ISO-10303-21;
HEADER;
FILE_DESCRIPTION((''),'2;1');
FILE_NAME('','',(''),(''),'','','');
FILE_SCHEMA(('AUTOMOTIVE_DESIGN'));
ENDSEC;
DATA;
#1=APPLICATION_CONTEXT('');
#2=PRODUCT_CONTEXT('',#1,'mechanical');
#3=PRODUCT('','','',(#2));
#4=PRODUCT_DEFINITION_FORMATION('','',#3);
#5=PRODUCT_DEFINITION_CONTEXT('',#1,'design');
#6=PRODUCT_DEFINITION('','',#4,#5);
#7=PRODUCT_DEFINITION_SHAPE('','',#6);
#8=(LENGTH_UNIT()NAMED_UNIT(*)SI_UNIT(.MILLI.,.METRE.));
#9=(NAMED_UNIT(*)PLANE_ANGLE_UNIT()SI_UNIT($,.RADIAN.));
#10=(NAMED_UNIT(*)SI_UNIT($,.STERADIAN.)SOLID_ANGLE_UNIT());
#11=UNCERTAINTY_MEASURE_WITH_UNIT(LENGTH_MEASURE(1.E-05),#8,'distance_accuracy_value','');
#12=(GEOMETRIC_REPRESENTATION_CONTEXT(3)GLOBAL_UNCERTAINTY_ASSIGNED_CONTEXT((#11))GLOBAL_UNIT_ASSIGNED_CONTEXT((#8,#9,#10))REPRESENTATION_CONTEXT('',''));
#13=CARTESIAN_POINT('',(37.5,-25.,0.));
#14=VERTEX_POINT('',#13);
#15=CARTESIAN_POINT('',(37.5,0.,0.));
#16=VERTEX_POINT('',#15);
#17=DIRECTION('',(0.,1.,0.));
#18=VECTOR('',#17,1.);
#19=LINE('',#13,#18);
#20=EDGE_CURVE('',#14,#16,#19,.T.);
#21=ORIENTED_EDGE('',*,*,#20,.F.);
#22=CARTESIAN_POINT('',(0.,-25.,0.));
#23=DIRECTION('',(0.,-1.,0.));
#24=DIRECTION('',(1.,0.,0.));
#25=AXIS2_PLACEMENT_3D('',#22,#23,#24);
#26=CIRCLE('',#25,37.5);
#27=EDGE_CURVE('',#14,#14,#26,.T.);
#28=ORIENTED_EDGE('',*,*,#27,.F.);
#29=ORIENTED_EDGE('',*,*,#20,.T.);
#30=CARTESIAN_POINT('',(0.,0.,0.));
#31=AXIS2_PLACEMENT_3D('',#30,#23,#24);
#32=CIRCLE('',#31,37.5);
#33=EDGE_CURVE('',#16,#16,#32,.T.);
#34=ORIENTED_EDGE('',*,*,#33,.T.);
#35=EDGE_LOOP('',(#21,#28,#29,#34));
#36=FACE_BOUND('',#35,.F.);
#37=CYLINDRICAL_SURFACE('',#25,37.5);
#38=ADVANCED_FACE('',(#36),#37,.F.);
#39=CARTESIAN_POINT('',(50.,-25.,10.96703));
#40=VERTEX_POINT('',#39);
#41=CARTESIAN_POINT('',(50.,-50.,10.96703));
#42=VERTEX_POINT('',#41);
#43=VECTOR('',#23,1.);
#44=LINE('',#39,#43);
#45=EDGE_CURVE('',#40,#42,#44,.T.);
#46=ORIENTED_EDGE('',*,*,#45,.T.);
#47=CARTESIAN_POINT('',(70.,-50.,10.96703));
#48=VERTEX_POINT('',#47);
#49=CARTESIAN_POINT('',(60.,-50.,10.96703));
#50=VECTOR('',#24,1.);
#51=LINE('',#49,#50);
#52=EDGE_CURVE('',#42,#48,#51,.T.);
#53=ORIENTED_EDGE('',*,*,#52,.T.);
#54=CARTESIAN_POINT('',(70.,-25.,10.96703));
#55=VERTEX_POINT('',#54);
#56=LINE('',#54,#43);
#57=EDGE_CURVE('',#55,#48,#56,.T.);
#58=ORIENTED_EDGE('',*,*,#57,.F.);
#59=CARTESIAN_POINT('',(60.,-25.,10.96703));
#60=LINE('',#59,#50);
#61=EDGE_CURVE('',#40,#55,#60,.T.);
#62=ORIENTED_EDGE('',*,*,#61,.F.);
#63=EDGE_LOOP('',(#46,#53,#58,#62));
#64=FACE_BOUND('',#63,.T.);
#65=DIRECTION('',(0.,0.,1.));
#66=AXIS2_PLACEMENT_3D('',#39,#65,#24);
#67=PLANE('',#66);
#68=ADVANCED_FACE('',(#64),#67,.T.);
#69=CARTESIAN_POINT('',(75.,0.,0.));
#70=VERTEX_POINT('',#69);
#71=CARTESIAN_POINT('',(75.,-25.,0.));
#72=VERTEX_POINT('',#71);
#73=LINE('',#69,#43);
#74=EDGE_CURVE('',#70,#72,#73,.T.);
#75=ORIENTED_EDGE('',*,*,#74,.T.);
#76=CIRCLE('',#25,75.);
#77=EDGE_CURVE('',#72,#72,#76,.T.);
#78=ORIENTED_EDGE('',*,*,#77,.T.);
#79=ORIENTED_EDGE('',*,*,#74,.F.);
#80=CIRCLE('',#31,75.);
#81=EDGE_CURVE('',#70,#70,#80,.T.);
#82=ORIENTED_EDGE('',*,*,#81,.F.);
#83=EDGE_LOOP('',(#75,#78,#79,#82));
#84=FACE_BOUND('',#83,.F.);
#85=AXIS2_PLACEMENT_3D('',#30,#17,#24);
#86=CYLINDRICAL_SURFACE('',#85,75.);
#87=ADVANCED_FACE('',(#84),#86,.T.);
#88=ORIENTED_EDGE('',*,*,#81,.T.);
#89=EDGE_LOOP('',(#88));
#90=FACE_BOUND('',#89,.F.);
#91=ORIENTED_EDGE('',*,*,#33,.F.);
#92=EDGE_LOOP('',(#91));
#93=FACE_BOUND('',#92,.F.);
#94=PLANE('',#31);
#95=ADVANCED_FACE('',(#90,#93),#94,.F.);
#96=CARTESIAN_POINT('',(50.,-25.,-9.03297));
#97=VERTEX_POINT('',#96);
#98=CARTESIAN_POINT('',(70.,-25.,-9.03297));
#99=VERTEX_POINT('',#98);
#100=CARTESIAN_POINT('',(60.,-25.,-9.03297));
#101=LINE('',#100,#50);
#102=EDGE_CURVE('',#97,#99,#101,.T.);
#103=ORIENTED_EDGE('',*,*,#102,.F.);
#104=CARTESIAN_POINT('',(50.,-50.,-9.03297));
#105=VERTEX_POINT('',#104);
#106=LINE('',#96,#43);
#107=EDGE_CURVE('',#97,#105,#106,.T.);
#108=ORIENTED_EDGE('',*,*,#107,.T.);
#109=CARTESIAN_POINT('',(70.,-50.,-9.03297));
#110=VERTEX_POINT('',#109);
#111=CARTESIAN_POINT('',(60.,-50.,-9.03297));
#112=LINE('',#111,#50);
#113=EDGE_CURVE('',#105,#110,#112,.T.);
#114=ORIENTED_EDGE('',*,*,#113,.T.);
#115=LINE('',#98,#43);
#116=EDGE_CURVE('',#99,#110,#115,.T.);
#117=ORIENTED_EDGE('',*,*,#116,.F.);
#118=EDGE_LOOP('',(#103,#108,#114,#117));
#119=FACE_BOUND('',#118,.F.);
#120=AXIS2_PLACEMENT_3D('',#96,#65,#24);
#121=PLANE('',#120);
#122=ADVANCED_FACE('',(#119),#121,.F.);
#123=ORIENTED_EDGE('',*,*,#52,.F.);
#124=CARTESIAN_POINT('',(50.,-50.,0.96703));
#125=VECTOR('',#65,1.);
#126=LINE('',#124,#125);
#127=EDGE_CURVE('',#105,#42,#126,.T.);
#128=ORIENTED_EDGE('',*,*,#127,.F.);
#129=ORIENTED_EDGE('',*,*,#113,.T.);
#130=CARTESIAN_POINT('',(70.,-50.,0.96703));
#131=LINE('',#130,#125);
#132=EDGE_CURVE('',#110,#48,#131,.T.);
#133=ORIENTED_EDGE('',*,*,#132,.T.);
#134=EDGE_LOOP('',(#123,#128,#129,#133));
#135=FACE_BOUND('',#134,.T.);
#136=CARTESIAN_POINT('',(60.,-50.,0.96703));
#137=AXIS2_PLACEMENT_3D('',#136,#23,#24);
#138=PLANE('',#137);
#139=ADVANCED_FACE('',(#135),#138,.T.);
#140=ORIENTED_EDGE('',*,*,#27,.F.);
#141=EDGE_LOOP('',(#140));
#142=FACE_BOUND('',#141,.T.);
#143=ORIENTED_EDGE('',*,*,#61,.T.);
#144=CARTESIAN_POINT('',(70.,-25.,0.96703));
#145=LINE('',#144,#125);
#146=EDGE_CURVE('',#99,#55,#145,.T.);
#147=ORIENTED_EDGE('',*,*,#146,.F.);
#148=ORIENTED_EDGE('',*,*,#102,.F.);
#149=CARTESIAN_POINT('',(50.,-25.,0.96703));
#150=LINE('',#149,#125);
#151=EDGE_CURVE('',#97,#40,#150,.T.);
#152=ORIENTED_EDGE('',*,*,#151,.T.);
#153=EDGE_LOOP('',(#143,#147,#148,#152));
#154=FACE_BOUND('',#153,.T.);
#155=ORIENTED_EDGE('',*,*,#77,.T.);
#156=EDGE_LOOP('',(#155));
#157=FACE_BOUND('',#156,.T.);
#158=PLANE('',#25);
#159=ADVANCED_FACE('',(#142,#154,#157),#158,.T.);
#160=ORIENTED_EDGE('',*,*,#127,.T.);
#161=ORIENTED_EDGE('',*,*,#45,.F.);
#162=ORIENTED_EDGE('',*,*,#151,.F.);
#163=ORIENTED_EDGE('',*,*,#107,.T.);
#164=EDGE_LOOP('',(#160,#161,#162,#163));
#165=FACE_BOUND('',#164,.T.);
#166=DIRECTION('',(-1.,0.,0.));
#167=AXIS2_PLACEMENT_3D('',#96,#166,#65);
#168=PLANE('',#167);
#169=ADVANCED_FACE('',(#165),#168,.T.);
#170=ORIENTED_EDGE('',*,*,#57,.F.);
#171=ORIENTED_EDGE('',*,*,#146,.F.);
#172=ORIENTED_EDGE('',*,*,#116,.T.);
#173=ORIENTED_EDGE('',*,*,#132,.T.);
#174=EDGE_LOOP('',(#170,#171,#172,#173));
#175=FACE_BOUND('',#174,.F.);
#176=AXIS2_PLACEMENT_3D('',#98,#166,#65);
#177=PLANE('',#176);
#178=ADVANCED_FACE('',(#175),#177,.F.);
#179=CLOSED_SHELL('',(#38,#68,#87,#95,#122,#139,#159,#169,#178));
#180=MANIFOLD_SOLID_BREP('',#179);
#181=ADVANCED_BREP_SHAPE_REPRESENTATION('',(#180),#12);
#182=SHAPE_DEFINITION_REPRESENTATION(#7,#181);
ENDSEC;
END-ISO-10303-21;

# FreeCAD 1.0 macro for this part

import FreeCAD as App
import Part
import Sketcher
from FreeCAD import Vector
Q = App.Units.Quantity

doc = App.newDocument("Part")
body = doc.addObject("PartDesign::Body", "Body")

# Sketch on XZ plane
sketch1 = body.newObject("Sketcher::SketchObject", "Sketch")
sketch1.AttachmentSupport = (doc.getObject("XZ_Plane"), [""])
sketch1.MapMode = "FlatFace"
sketch1.addGeometry(Part.Circle(Vector(0, 0, 0), Vector(0, 0, 1), 75), False)
sketch1.addConstraint(Sketcher.Constraint("Coincident", 0, 3, -1, 1))
sketch1.addConstraint(Sketcher.Constraint("Diameter", 0, Q("150 mm")))
pad1 = body.newObject("PartDesign::Pad", "Pad")
pad1.Profile = sketch1
pad1.Length = 25

# Sketch on XZ plane
sketch2 = body.newObject("Sketcher::SketchObject", "Sketch001")
sketch2.AttachmentSupport = (doc.getObject("XZ_Plane"), [""])
sketch2.MapMode = "FlatFace"
sketch2.AttachmentOffset = App.Placement(Vector(0, 0, 25), App.Rotation())
sketch2.addGeometry(Part.Circle(Vector(0, 0, 0), Vector(0, 0, 1), 38), False)
sketch2.addConstraint(Sketcher.Constraint("Coincident", 0, 3, -1, 1))
sketch2.addConstraint(Sketcher.Constraint("Diameter", 0, Q("75 mm")))
pocket1 = body.newObject("PartDesign::Pocket", "Pocket")
pocket1.Profile = sketch2
pocket1.Length = 25

# Sketch on XZ plane
sketch3 = body.newObject("Sketcher::SketchObject", "Sketch002")
sketch3.AttachmentSupport = (doc.getObject("XZ_Plane"), [""])
sketch3.MapMode = "FlatFace"
sketch3.AttachmentOffset = App.Placement(Vector(0, 0, 25), App.Rotation())
sketch3.addGeometry(Part.LineSegment(Vector(50, 11, 0), Vector(50, -9, 0)), False)
sketch3.addGeometry(Part.LineSegment(Vector(50, -9, 0), Vector(70, -9, 0)), False)
sketch3.addGeometry(Part.LineSegment(Vector(70, -9, 0), Vector(70, 11, 0)), False)
sketch3.addGeometry(Part.LineSegment(Vector(70, 11, 0), Vector(50, 11, 0)), False)
sketch3.addConstraint(Sketcher.Constraint("Coincident", 0, 2, 1, 1))
sketch3.addConstraint(Sketcher.Constraint("Coincident", 1, 2, 2, 1))
sketch3.addConstraint(Sketcher.Constraint("Coincident", 2, 2, 3, 1))
sketch3.addConstraint(Sketcher.Constraint("Coincident", 3, 2, 0, 1))
sketch3.addConstraint(Sketcher.Constraint("Vertical", 0))
sketch3.addConstraint(Sketcher.Constraint("Horizontal", 1))
sketch3.addConstraint(Sketcher.Constraint("Vertical", 2))
sketch3.addConstraint(Sketcher.Constraint("Horizontal", 3))
sketch3.addConstraint(Sketcher.Constraint("Equal", 3, 0))
sketch3.addConstraint(Sketcher.Constraint("DistanceX", 1, 1, 1, 2, Q("20 mm")))
sketch3.addConstraint(Sketcher.Constraint("DistanceX", -1, 1, 0, 2, Q("50 mm")))
sketch3.addConstraint(Sketcher.Constraint("DistanceY", 0, 2, -1, 1, Q("9.03297 mm")))
pad2 = body.newObject("PartDesign::Pad", "Pad001")
pad2.Profile = sketch3
pad2.Length = 25

doc.recompute()
